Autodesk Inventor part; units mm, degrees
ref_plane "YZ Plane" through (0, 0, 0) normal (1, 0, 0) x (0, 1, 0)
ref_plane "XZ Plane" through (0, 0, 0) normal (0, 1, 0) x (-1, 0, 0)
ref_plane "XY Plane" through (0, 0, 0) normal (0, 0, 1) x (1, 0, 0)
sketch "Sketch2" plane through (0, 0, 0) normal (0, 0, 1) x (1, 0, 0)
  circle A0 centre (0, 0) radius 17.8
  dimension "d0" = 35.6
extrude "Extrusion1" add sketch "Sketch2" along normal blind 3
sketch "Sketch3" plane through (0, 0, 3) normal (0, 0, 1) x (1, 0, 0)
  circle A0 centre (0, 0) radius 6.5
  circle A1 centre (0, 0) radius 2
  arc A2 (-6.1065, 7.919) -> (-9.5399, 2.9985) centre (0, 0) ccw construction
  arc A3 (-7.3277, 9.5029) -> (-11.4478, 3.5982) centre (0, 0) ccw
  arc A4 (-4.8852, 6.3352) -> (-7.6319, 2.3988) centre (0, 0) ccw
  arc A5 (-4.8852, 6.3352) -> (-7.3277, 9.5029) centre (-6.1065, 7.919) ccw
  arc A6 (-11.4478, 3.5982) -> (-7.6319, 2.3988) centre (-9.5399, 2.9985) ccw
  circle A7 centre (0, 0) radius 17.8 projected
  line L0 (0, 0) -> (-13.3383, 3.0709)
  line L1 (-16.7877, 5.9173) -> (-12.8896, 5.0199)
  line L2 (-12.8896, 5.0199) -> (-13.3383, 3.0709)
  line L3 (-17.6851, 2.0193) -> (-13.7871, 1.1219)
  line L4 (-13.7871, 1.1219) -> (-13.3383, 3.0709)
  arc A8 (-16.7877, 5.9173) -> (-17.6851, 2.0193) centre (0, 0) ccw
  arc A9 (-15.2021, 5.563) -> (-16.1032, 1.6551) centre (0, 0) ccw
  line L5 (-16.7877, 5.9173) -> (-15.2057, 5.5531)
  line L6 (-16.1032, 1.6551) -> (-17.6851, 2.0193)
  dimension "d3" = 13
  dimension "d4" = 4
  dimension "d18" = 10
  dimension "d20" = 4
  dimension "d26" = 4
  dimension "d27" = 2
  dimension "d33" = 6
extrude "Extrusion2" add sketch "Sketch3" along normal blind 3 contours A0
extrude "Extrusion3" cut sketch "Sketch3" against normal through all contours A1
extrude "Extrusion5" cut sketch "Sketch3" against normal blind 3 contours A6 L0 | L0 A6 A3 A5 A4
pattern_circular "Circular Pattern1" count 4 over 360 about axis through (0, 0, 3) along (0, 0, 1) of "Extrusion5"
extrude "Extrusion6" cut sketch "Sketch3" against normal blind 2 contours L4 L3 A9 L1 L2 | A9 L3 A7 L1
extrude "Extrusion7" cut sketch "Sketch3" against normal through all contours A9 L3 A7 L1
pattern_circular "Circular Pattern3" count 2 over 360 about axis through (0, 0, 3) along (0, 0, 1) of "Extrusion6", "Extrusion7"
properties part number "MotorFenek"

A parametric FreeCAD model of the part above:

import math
import FreeCAD as App
import Part
import Sketcher
from FreeCAD import Vector
Q = App.Units.Quantity

doc = App.newDocument("Part")
body = doc.addObject("PartDesign::Body", "Body")

# Sketch on XY plane
sketch1 = doc.addObject("Sketcher::SketchObject", "Sketch")
body.addObject(sketch1)
sketch1.AttachmentSupport = (doc.XY_Plane, [""])
sketch1.MapMode = "FlatFace"
sketch1.addGeometry(Part.Circle(Vector(0, 0, 0), Vector(0, 0, 1), 18), False)
sketch1.addConstraint(Sketcher.Constraint("Coincident", 0, 3, -1, 1))
sketch1.addConstraint(Sketcher.Constraint("Diameter", 0, Q("35.6 mm")))
pad1 = doc.addObject("PartDesign::Pad", "Pad")
body.addObject(pad1)
pad1.Profile = sketch1
pad1.Length = 3

# Sketch on XY plane
sketch2 = doc.addObject("Sketcher::SketchObject", "Sketch001")
body.addObject(sketch2)
sketch2.AttachmentSupport = (doc.XY_Plane, [""])
sketch2.MapMode = "FlatFace"
sketch2.AttachmentOffset = App.Placement(Vector(0, 0, 3), App.Rotation())
sketch2.addGeometry(Part.Circle(Vector(0, 0, 0), Vector(0, 0, 1), 6.5), False)
sketch2.addGeometry(Part.Circle(Vector(0, 0, 0), Vector(0, 0, 1), 2), False)
sketch2.addConstraint(Sketcher.Constraint("Coincident", 0, 3, -1, 1))
sketch2.addConstraint(Sketcher.Constraint("Coincident", 1, 3, -1, 1))
sketch2.addConstraint(Sketcher.Constraint("Diameter", 0, Q("13 mm")))
sketch2.addConstraint(Sketcher.Constraint("Diameter", 1, Q("4 mm")))
pad2 = doc.addObject("PartDesign::Pad", "Pad001")
body.addObject(pad2)
pad2.Profile = sketch2
pad2.Length = 3

# Sketch on XY plane
sketch3 = doc.addObject("Sketcher::SketchObject", "Sketch002")
body.addObject(sketch3)
sketch3.AttachmentSupport = (doc.XY_Plane, [""])
sketch3.MapMode = "FlatFace"
sketch3.AttachmentOffset = App.Placement(Vector(0, 0, 3), App.Rotation())
sketch3.addGeometry(Part.Circle(Vector(0, 0, 0), Vector(0, 0, 1), 2), False)
sketch3.addConstraint(Sketcher.Constraint("Coincident", 0, 3, -1, 1))
sketch3.addConstraint(Sketcher.Constraint("Diameter", 0, Q("4 mm")))
pocket1 = doc.addObject("PartDesign::Pocket", "Pocket")
body.addObject(pocket1)
pocket1.Profile = sketch3
pocket1.Type = "ThroughAll"

# Sketch on XY plane
sketch4 = doc.addObject("Sketcher::SketchObject", "Sketch003")
body.addObject(sketch4)
sketch4.AttachmentSupport = (doc.XY_Plane, [""])
sketch4.MapMode = "FlatFace"
sketch4.AttachmentOffset = App.Placement(Vector(0, 0, 3), App.Rotation())
sketch4.addGeometry(Part.ArcOfCircle(Part.Circle(Vector(0, 0, 0), Vector(0, 0, 1), 8), math.radians(128), math.radians(163)), False)
sketch4.addGeometry(Part.ArcOfCircle(Part.Circle(Vector(-6.1, 7.9, 0), Vector(0, 0, 1), 2), math.radians(-52), math.radians(128)), False)
sketch4.addGeometry(Part.ArcOfCircle(Part.Circle(Vector(0, 0, 0), Vector(0, 0, 1), 12), math.radians(128), math.radians(163)), False)
sketch4.addGeometry(Part.ArcOfCircle(Part.Circle(Vector(-9.5, 3, 0), Vector(0, 0, 1), 2), math.radians(163), math.radians(343)), False)
sketch4.addConstraint(Sketcher.Constraint("Tangent", 0, 1, 1, 1))
sketch4.addConstraint(Sketcher.Constraint("Tangent", 1, 2, 2, 1))
sketch4.addConstraint(Sketcher.Constraint("Tangent", 2, 2, 3, 1))
sketch4.addConstraint(Sketcher.Constraint("Tangent", 3, 2, 0, 2))
sketch4.addConstraint(Sketcher.Constraint("Coincident", 0, 3, -1, 1))
sketch4.addConstraint(Sketcher.Constraint("Coincident", 2, 3, -1, 1))
sketch4.addConstraint(Sketcher.Constraint("Radius", 1, Q("2 mm")))
sketch4.addConstraint(Sketcher.Constraint("Radius", 0, Q("8 mm")))
sketch4.addConstraint(Sketcher.Constraint("DistanceX", 3, 3, -1, 1, Q("9.54 mm")))
sketch4.addConstraint(Sketcher.Constraint("DistanceY", -1, 1, 1, 3, Q("7.919 mm")))
pocket2 = doc.addObject("PartDesign::Pocket", "Pocket001")
body.addObject(pocket2)
pocket2.Profile = sketch4
pocket2.Length = 3
doc.recompute()

polarpattern = doc.addObject("PartDesign::PolarPattern", "PolarPattern")
body.addObject(polarpattern)
polarpattern.Originals = [pocket2]
polarpattern.Axis = (doc.Z_Axis, [""])
polarpattern.Angle = 360
polarpattern.Occurrences = 4
body.Tip = polarpattern

# Sketch on XY plane
sketch5 = doc.addObject("Sketcher::SketchObject", "Sketch004")
body.addObject(sketch5)
sketch5.AttachmentSupport = (doc.XY_Plane, [""])
sketch5.MapMode = "FlatFace"
sketch5.AttachmentOffset = App.Placement(Vector(0, 0, 3), App.Rotation())
sketch5.addGeometry(Part.LineSegment(Vector(-13.8, 1.1, 0), Vector(-13.3, 3.1, 0)), False)
sketch5.addGeometry(Part.LineSegment(Vector(-13.3, 3.1, 0), Vector(-12.9, 5, 0)), False)
sketch5.addGeometry(Part.LineSegment(Vector(-12.9, 5, 0), Vector(-16.8, 5.9, 0)), False)
sketch5.addGeometry(Part.ArcOfCircle(Part.Circle(Vector(0, 0, 0), Vector(0, 0, 1), 17.8), math.radians(160.58), math.radians(173.49)), False)
sketch5.addGeometry(Part.LineSegment(Vector(-17.7, 2, 0), Vector(-13.8, 1.1, 0)), False)
sketch5.addConstraint(Sketcher.Constraint("Coincident", 0, 2, 1, 1))
sketch5.addConstraint(Sketcher.Constraint("Coincident", 1, 2, 2, 1))
sketch5.addConstraint(Sketcher.Constraint("Coincident", 2, 2, 3, 1))
sketch5.addConstraint(Sketcher.Constraint("Coincident", 3, 2, 4, 1))
sketch5.addConstraint(Sketcher.Constraint("Coincident", 4, 2, 0, 1))
sketch5.addConstraint(Sketcher.Constraint("Coincident", 3, 3, -1, 1))
sketch5.addConstraint(Sketcher.Constraint("Parallel", 0, 1))
sketch5.addConstraint(Sketcher.Constraint("Perpendicular", 1, 2))
sketch5.addConstraint(Sketcher.Constraint("Parallel", 2, 4))
sketch5.addConstraint(Sketcher.Constraint("Equal", 0, 1))
sketch5.addConstraint(Sketcher.Constraint("Equal", 2, 4))
sketch5.addConstraint(Sketcher.Constraint("Distance", 0, Q("2 mm")))
sketch5.addConstraint(Sketcher.Constraint("Distance", 2, Q("4 mm")))
sketch5.addConstraint(Sketcher.Constraint("Radius", 3, Q("17.8 mm")))
sketch5.addConstraint(Sketcher.Constraint("DistanceY", -1, 1, 1, 2, Q("5.02 mm")))
pocket3 = doc.addObject("PartDesign::Pocket", "Pocket002")
body.addObject(pocket3)
pocket3.Profile = sketch5
pocket3.Length = 2

# Sketch on XY plane
sketch6 = doc.addObject("Sketcher::SketchObject", "Sketch005")
body.addObject(sketch6)
sketch6.AttachmentSupport = (doc.XY_Plane, [""])
sketch6.MapMode = "FlatFace"
sketch6.AttachmentOffset = App.Placement(Vector(0, 0, 3), App.Rotation())
sketch6.addGeometry(Part.ArcOfCircle(Part.Circle(Vector(0, 0, 0), Vector(0, 0, 1), 16.2), math.radians(159.94), math.radians(174.13)), False)
sketch6.addGeometry(Part.LineSegment(Vector(-15.2, 5.6, 0), Vector(-16.8, 5.9, 0)), False)
sketch6.addGeometry(Part.ArcOfCircle(Part.Circle(Vector(0, 0, 0), Vector(0, 0, 1), 17.8), math.radians(160.58), math.radians(173.49)), False)
sketch6.addGeometry(Part.LineSegment(Vector(-17.7, 2, 0), Vector(-16.1, 1.7, 0)), False)
sketch6.addConstraint(Sketcher.Constraint("Coincident", 0, 1, 1, 1))
sketch6.addConstraint(Sketcher.Constraint("Coincident", 1, 2, 2, 1))
sketch6.addConstraint(Sketcher.Constraint("Coincident", 2, 2, 3, 1))
sketch6.addConstraint(Sketcher.Constraint("Coincident", 3, 2, 0, 2))
sketch6.addConstraint(Sketcher.Constraint("Coincident", 2, 3, -1, 1))
sketch6.addConstraint(Sketcher.Constraint("Parallel", 1, 3))
sketch6.addConstraint(Sketcher.Constraint("Equal", 1, 3))
sketch6.addConstraint(Sketcher.Constraint("Radius", 2, Q("17.8 mm")))
sketch6.addConstraint(Sketcher.Constraint("Radius", 0, Q("16.1912 mm")))
sketch6.addConstraint(Sketcher.Constraint("DistanceX", -1, 1, 0, 3, Q("0.003 mm")))
sketch6.addConstraint(Sketcher.Constraint("DistanceY", 0, 3, -1, 1, Q("0.001 mm")))
sketch6.addConstraint(Sketcher.Constraint("DistanceY", -1, 1, 0, 1, Q("5.553 mm")))
sketch6.addConstraint(Sketcher.Constraint("DistanceX", 2, 2, -1, 1, Q("17.685 mm")))
pocket4 = doc.addObject("PartDesign::Pocket", "Pocket003")
body.addObject(pocket4)
pocket4.Profile = sketch6
pocket4.Type = "ThroughAll"
doc.recompute()

polarpattern2 = doc.addObject("PartDesign::PolarPattern", "PolarPattern001")
body.addObject(polarpattern2)
polarpattern2.Originals = [pocket3, pocket4]
polarpattern2.Axis = (doc.Z_Axis, [""])
polarpattern2.Angle = 360
polarpattern2.Occurrences = 2
body.Tip = polarpattern2

doc.recompute()
